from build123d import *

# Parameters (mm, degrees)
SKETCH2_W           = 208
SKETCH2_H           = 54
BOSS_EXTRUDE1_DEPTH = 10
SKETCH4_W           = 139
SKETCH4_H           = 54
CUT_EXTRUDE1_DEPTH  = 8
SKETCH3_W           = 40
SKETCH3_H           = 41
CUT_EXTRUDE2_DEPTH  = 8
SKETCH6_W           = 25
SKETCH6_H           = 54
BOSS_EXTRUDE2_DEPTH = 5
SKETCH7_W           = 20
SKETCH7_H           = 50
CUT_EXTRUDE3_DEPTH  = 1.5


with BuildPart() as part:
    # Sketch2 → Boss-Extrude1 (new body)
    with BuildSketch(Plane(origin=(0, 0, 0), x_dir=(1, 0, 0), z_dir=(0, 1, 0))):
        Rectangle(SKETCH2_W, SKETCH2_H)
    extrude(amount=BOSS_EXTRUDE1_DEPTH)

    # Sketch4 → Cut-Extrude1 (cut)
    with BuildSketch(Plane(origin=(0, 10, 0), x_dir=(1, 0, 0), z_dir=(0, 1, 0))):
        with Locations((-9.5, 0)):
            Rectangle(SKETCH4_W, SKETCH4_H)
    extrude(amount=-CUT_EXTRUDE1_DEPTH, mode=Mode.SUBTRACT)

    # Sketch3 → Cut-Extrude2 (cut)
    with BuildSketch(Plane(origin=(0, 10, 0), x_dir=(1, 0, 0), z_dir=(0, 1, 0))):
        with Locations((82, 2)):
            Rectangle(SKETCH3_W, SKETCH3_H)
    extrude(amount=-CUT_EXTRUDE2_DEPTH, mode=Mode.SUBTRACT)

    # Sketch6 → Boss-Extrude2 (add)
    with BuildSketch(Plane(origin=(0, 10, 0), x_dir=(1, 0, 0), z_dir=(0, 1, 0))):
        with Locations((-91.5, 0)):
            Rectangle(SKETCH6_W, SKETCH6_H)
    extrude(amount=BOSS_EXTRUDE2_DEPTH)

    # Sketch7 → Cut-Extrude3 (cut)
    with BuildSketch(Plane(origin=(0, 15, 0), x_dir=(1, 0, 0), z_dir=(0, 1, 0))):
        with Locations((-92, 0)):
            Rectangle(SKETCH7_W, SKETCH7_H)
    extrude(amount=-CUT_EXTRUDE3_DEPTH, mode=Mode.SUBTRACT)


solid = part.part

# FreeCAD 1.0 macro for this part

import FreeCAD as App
import Part
import Sketcher
from FreeCAD import Vector
Q = App.Units.Quantity

doc = App.newDocument("Part")
body = doc.addObject("PartDesign::Body", "Body")

# Sketch on XZ plane
sketch1 = body.newObject("Sketcher::SketchObject", "Sketch")
sketch1.AttachmentSupport = (doc.getObject("XZ_Plane"), [""])
sketch1.MapMode = "FlatFace"
sketch1.addGeometry([
    Part.LineSegment(Vector(-104, -27, 0), Vector(-104, 27, 0)),
    Part.LineSegment(Vector(-104, 27, 0), Vector(104, 27, 0)),
    Part.LineSegment(Vector(104, 27, 0), Vector(104, -27, 0)),
    Part.LineSegment(Vector(104, -27, 0), Vector(-104, -27, 0)),
], False)
sketch1.addConstraint([
    Sketcher.Constraint("Coincident", 0, 2, 1, 1),
    Sketcher.Constraint("Coincident", 1, 2, 2, 1),
    Sketcher.Constraint("Coincident", 2, 2, 3, 1),
    Sketcher.Constraint("Coincident", 3, 2, 0, 1),
    Sketcher.Constraint("Vertical", 0),
    Sketcher.Constraint("Horizontal", 1),
    Sketcher.Constraint("Vertical", 2),
    Sketcher.Constraint("Horizontal", 3),
    Sketcher.Constraint("Symmetric", 0, 2, 2, 2, -1, 1),
    Sketcher.Constraint("DistanceX", 1, 1, 1, 2, Q("208 mm")),
    Sketcher.Constraint("DistanceY", 0, 1, 0, 2, Q("54 mm")),
])
pad1 = body.newObject("PartDesign::Pad", "Pad")
pad1.Profile = sketch1
pad1.Length = 10
pad1.Reversed = True

# Sketch on XZ plane
sketch2 = body.newObject("Sketcher::SketchObject", "Sketch001")
sketch2.AttachmentSupport = (doc.getObject("XZ_Plane"), [""])
sketch2.MapMode = "FlatFace"
sketch2.AttachmentOffset = App.Placement(Vector(0, 0, -10), App.Rotation())
sketch2.addGeometry([
    Part.LineSegment(Vector(-79, -27, 0), Vector(-79, 27, 0)),
    Part.LineSegment(Vector(-79, 27, 0), Vector(60, 27, 0)),
    Part.LineSegment(Vector(60, 27, 0), Vector(60, -27, 0)),
    Part.LineSegment(Vector(60, -27, 0), Vector(-79, -27, 0)),
], False)
sketch2.addConstraint([
    Sketcher.Constraint("Coincident", 0, 2, 1, 1),
    Sketcher.Constraint("Coincident", 1, 2, 2, 1),
    Sketcher.Constraint("Coincident", 2, 2, 3, 1),
    Sketcher.Constraint("Coincident", 3, 2, 0, 1),
    Sketcher.Constraint("Vertical", 0),
    Sketcher.Constraint("Horizontal", 1),
    Sketcher.Constraint("Vertical", 2),
    Sketcher.Constraint("Horizontal", 3),
    Sketcher.Constraint("DistanceX", 1, 1, 1, 2, Q("139 mm")),
    Sketcher.Constraint("DistanceY", 0, 1, 0, 2, Q("54 mm")),
    Sketcher.Constraint("DistanceX", 0, 2, -1, 1, Q("79 mm")),
    Sketcher.Constraint("DistanceY", -1, 1, 0, 2, Q("27 mm")),
])
pocket1 = body.newObject("PartDesign::Pocket", "Pocket")
pocket1.Profile = sketch2
pocket1.Length = 8
pocket1.Reversed = True

# Sketch on XZ plane
sketch3 = body.newObject("Sketcher::SketchObject", "Sketch002")
sketch3.AttachmentSupport = (doc.getObject("XZ_Plane"), [""])
sketch3.MapMode = "FlatFace"
sketch3.AttachmentOffset = App.Placement(Vector(0, 0, -10), App.Rotation())
sketch3.addGeometry([
    Part.LineSegment(Vector(62, -22.5, 0), Vector(62, 18.5, 0)),
    Part.LineSegment(Vector(62, 18.5, 0), Vector(102, 18.5, 0)),
    Part.LineSegment(Vector(102, 18.5, 0), Vector(102, -22.5, 0)),
    Part.LineSegment(Vector(102, -22.5, 0), Vector(62, -22.5, 0)),
], False)
sketch3.addConstraint([
    Sketcher.Constraint("Coincident", 0, 2, 1, 1),
    Sketcher.Constraint("Coincident", 1, 2, 2, 1),
    Sketcher.Constraint("Coincident", 2, 2, 3, 1),
    Sketcher.Constraint("Coincident", 3, 2, 0, 1),
    Sketcher.Constraint("Vertical", 0),
    Sketcher.Constraint("Horizontal", 1),
    Sketcher.Constraint("Vertical", 2),
    Sketcher.Constraint("Horizontal", 3),
    Sketcher.Constraint("DistanceX", 1, 1, 1, 2, Q("40 mm")),
    Sketcher.Constraint("DistanceY", 0, 1, 0, 2, Q("41 mm")),
    Sketcher.Constraint("DistanceX", -1, 1, 0, 2, Q("62 mm")),
    Sketcher.Constraint("DistanceY", -1, 1, 0, 2, Q("18.5 mm")),
])
pocket2 = body.newObject("PartDesign::Pocket", "Pocket001")
pocket2.Profile = sketch3
pocket2.Length = 8
pocket2.Reversed = True

# Sketch on XZ plane
sketch4 = body.newObject("Sketcher::SketchObject", "Sketch003")
sketch4.AttachmentSupport = (doc.getObject("XZ_Plane"), [""])
sketch4.MapMode = "FlatFace"
sketch4.AttachmentOffset = App.Placement(Vector(0, 0, -10), App.Rotation())
sketch4.addGeometry([
    Part.LineSegment(Vector(-104, -27, 0), Vector(-104, 27, 0)),
    Part.LineSegment(Vector(-104, 27, 0), Vector(-79, 27, 0)),
    Part.LineSegment(Vector(-79, 27, 0), Vector(-79, -27, 0)),
    Part.LineSegment(Vector(-79, -27, 0), Vector(-104, -27, 0)),
], False)
sketch4.addConstraint([
    Sketcher.Constraint("Coincident", 0, 2, 1, 1),
    Sketcher.Constraint("Coincident", 1, 2, 2, 1),
    Sketcher.Constraint("Coincident", 2, 2, 3, 1),
    Sketcher.Constraint("Coincident", 3, 2, 0, 1),
    Sketcher.Constraint("Vertical", 0),
    Sketcher.Constraint("Horizontal", 1),
    Sketcher.Constraint("Vertical", 2),
    Sketcher.Constraint("Horizontal", 3),
    Sketcher.Constraint("DistanceX", 1, 1, 1, 2, Q("25 mm")),
    Sketcher.Constraint("DistanceY", 0, 1, 0, 2, Q("54 mm")),
    Sketcher.Constraint("DistanceX", 0, 2, -1, 1, Q("104 mm")),
    Sketcher.Constraint("DistanceY", -1, 1, 0, 2, Q("27 mm")),
])
pad2 = body.newObject("PartDesign::Pad", "Pad001")
pad2.Profile = sketch4
pad2.Length = 5
pad2.Reversed = True

# Sketch on XZ plane
sketch5 = body.newObject("Sketcher::SketchObject", "Sketch004")
sketch5.AttachmentSupport = (doc.getObject("XZ_Plane"), [""])
sketch5.MapMode = "FlatFace"
sketch5.AttachmentOffset = App.Placement(Vector(0, 0, -15), App.Rotation())
sketch5.addGeometry([
    Part.LineSegment(Vector(-102, -25, 0), Vector(-102, 25, 0)),
    Part.LineSegment(Vector(-102, 25, 0), Vector(-82, 25, 0)),
    Part.LineSegment(Vector(-82, 25, 0), Vector(-82, -25, 0)),
    Part.LineSegment(Vector(-82, -25, 0), Vector(-102, -25, 0)),
], False)
sketch5.addConstraint([
    Sketcher.Constraint("Coincident", 0, 2, 1, 1),
    Sketcher.Constraint("Coincident", 1, 2, 2, 1),
    Sketcher.Constraint("Coincident", 2, 2, 3, 1),
    Sketcher.Constraint("Coincident", 3, 2, 0, 1),
    Sketcher.Constraint("Vertical", 0),
    Sketcher.Constraint("Horizontal", 1),
    Sketcher.Constraint("Vertical", 2),
    Sketcher.Constraint("Horizontal", 3),
    Sketcher.Constraint("DistanceX", 1, 1, 1, 2, Q("20 mm")),
    Sketcher.Constraint("DistanceY", 0, 1, 0, 2, Q("50 mm")),
    Sketcher.Constraint("DistanceX", 0, 2, -1, 1, Q("102 mm")),
    Sketcher.Constraint("DistanceY", -1, 1, 0, 2, Q("25 mm")),
])
pocket3 = body.newObject("PartDesign::Pocket", "Pocket002")
pocket3.Profile = sketch5
pocket3.Length = 1.5
pocket3.Reversed = True

doc.recompute()
